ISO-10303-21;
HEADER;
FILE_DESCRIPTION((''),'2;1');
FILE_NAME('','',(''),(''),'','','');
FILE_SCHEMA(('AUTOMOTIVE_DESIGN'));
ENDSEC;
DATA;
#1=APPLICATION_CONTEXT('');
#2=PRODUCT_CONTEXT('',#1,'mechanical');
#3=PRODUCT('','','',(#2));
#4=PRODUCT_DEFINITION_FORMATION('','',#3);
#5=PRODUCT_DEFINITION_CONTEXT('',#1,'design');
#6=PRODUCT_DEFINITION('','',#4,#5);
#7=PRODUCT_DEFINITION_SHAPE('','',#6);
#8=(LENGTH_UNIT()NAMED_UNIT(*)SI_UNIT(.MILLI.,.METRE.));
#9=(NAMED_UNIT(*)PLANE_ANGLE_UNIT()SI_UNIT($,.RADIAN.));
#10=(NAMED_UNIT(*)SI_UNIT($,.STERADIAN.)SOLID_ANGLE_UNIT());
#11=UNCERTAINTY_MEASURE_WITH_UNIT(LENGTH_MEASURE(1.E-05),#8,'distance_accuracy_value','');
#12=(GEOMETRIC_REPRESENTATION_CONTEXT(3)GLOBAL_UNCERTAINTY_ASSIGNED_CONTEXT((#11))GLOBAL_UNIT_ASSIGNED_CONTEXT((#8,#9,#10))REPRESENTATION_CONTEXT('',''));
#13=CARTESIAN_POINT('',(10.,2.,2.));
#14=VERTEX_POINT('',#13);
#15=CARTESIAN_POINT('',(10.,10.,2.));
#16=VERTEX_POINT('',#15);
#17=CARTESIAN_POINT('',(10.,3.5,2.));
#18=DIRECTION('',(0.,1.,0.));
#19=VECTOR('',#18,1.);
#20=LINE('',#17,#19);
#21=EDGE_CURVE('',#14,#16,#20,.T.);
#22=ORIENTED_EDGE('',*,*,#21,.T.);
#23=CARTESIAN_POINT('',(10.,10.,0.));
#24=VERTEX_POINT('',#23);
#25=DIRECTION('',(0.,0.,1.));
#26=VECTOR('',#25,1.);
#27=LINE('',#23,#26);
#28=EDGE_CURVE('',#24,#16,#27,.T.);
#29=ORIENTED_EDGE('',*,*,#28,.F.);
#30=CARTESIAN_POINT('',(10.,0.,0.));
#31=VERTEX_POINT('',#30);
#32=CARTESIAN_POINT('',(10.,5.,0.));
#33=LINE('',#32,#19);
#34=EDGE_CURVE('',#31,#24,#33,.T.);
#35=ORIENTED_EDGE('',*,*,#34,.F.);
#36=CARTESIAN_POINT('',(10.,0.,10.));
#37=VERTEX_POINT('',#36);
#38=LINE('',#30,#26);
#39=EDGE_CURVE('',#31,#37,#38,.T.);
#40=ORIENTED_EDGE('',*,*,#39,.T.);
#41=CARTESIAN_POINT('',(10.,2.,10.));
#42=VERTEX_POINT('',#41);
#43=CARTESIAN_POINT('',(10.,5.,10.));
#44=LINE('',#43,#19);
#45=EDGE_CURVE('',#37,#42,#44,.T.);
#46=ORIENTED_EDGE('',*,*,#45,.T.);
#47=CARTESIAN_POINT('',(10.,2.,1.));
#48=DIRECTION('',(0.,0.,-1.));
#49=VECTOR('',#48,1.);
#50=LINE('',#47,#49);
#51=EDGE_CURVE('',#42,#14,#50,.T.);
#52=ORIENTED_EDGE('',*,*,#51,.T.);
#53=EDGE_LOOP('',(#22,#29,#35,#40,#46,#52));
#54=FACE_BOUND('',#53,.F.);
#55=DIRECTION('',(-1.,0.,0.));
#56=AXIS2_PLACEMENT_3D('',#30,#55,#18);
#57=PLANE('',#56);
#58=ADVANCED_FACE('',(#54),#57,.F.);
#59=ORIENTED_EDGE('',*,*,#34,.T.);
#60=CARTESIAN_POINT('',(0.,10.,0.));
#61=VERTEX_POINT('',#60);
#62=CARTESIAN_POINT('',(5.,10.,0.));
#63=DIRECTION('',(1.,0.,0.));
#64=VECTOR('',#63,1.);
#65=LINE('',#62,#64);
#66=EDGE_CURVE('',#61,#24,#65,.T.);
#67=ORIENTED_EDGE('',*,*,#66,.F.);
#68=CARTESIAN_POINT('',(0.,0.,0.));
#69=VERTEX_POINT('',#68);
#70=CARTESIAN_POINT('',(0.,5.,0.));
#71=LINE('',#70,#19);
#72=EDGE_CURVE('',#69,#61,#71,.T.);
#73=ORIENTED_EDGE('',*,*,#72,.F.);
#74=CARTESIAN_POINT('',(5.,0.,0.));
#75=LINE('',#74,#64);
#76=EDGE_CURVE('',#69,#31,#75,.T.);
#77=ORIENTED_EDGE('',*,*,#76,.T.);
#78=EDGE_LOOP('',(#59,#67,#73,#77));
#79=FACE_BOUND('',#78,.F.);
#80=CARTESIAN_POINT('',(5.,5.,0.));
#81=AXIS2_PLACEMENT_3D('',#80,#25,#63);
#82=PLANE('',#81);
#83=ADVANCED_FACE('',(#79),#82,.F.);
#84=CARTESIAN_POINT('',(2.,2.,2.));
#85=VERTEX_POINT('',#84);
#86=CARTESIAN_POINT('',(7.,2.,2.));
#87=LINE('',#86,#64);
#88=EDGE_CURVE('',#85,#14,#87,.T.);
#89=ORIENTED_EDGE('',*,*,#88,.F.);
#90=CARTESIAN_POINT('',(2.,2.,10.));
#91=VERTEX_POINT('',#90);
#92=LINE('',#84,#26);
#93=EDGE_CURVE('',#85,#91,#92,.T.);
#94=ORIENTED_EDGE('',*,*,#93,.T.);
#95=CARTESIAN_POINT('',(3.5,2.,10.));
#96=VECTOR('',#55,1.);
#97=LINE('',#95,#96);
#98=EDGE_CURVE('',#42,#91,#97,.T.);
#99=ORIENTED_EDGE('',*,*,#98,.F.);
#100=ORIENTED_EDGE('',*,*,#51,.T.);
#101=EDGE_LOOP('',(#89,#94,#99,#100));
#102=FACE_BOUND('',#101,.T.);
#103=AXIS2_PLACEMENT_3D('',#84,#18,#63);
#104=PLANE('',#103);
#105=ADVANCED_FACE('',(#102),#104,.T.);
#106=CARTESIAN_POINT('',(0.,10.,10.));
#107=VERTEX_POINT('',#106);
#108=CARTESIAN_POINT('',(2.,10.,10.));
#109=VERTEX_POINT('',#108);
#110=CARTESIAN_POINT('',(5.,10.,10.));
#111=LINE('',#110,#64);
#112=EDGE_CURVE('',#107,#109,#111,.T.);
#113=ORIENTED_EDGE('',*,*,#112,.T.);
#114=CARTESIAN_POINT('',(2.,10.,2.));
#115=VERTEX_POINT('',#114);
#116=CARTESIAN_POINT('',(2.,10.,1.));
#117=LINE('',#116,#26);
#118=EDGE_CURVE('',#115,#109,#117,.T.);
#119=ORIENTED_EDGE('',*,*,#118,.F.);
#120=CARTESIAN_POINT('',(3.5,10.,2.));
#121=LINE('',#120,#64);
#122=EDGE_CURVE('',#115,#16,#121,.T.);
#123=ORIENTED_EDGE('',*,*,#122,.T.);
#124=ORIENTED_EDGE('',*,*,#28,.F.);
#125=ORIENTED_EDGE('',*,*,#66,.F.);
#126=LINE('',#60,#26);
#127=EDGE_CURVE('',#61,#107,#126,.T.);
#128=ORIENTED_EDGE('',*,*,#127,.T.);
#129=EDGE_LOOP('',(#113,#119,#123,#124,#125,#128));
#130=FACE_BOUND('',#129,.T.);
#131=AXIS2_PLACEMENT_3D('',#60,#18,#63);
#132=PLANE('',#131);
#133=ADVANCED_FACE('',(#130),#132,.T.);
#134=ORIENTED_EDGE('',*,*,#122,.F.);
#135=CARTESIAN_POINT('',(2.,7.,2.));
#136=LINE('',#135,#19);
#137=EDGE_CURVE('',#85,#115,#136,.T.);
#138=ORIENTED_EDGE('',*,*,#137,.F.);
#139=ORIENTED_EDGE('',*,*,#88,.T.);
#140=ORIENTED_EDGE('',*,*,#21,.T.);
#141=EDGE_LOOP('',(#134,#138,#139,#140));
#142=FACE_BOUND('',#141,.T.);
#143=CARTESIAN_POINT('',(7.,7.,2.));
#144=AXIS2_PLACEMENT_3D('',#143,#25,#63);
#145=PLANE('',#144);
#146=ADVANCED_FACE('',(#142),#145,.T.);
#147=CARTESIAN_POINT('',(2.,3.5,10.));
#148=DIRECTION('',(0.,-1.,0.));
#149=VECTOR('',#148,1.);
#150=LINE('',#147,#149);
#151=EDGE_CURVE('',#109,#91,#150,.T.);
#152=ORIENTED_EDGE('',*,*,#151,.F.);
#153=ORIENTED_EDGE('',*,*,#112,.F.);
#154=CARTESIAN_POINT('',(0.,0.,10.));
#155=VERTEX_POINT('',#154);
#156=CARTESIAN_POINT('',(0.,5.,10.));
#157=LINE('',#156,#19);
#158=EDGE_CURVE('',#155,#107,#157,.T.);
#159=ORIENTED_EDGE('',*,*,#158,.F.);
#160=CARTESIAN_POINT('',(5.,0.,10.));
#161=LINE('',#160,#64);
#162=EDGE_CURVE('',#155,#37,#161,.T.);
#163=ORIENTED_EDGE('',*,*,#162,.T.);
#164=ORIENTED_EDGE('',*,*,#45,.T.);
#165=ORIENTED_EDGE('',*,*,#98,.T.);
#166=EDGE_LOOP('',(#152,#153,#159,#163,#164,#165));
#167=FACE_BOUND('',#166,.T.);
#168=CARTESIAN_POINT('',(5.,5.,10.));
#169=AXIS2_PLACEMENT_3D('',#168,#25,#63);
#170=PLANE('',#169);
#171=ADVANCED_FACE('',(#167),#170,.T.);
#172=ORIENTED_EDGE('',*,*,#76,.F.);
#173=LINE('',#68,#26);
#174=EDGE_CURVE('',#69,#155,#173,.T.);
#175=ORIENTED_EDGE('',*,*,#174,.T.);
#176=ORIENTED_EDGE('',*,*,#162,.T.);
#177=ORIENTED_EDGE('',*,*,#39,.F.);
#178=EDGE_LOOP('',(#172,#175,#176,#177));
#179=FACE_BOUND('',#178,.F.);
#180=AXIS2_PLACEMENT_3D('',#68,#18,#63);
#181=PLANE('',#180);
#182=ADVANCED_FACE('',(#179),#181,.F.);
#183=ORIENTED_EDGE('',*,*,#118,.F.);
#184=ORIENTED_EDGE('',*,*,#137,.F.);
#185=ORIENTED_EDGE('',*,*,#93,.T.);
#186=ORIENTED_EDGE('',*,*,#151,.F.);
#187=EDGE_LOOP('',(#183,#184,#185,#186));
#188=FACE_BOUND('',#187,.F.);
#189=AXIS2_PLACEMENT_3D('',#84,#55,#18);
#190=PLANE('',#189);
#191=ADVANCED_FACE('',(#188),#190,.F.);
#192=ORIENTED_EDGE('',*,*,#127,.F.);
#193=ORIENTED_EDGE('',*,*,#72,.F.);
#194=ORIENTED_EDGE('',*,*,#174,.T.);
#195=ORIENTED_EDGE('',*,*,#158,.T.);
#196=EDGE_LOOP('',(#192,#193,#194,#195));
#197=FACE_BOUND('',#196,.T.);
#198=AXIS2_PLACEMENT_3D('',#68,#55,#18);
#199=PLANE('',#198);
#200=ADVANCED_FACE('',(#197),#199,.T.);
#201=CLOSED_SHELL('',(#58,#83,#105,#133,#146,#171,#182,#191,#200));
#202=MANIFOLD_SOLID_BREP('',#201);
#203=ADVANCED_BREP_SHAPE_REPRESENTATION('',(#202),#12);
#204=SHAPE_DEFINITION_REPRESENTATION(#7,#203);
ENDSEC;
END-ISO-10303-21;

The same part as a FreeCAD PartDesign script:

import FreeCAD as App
import Part
import Sketcher


def add_polygon(sketch, points):
    """Adds a closed chain of lines whose ends are joined by coincident constraints."""
    first, n = sketch.GeometryCount, len(points)
    for a, b in zip(points, points[1:] + points[:1]):
        sketch.addGeometry(Part.LineSegment(App.Vector(*a, 0), App.Vector(*b, 0)), False)
    for i in range(n):
        sketch.addConstraint(Sketcher.Constraint("Coincident", first + i, 2, first + (i + 1) % n, 1))

doc = App.newDocument("Part")
body = doc.addObject("PartDesign::Body", "Body")

sketch1 = body.newObject("Sketcher::SketchObject", "Sketch")
sketch1.AttachmentSupport = (doc.getObject("XY_Plane"), [""])
sketch1.MapMode = "FlatFace"
sketch1.AttachmentOffset = App.Placement(App.Vector(0, 0, 2), App.Rotation())
add_polygon(sketch1, [(2, 12), (2, 2), (12, 2), (12, 12)])
sketch1.addConstraint([
    Sketcher.Constraint("Vertical", 0),
    Sketcher.Constraint("Horizontal", 1),
    Sketcher.Constraint("Vertical", 2),
    Sketcher.Constraint("Horizontal", 3),
    Sketcher.Constraint("Equal", 3, 0),
    Sketcher.Constraint("DistanceX", 1, 1, 1, 2, 10.0),
    Sketcher.Constraint("DistanceX", -1, 1, 0, 2, 2.0),
    Sketcher.Constraint("DistanceY", -1, 1, 0, 2, 2.0),
])
pad1 = body.newObject("PartDesign::Pad", "Pad")
pad1.Profile = sketch1
pad1.Length = 10
body2 = doc.addObject("PartDesign::Body", "Body001")

sketch2 = body2.newObject("Sketcher::SketchObject", "Sketch001")
sketch2.AttachmentSupport = (doc.getObject("XY_Plane001"), [""])
sketch2.MapMode = "FlatFace"
add_polygon(sketch2, [(0, 10), (0, 0), (10, 0), (10, 10)])
sketch2.addConstraint([
    Sketcher.Constraint("Vertical", 0),
    Sketcher.Constraint("Horizontal", 1),
    Sketcher.Constraint("Vertical", 2),
    Sketcher.Constraint("Horizontal", 3),
    Sketcher.Constraint("Coincident", 0, 2, -1, 1),
    Sketcher.Constraint("Equal", 3, 0),
    Sketcher.Constraint("DistanceX", 1, 1, 1, 2, 10.0),
])
pad2 = body2.newObject("PartDesign::Pad", "Pad001")
pad2.Profile = sketch2
pad2.Length = 10
doc.recompute()

boolean = body2.newObject("PartDesign::Boolean", "Boolean")
boolean.Type = "Cut"
boolean.addObjects([body])

doc.recompute()
